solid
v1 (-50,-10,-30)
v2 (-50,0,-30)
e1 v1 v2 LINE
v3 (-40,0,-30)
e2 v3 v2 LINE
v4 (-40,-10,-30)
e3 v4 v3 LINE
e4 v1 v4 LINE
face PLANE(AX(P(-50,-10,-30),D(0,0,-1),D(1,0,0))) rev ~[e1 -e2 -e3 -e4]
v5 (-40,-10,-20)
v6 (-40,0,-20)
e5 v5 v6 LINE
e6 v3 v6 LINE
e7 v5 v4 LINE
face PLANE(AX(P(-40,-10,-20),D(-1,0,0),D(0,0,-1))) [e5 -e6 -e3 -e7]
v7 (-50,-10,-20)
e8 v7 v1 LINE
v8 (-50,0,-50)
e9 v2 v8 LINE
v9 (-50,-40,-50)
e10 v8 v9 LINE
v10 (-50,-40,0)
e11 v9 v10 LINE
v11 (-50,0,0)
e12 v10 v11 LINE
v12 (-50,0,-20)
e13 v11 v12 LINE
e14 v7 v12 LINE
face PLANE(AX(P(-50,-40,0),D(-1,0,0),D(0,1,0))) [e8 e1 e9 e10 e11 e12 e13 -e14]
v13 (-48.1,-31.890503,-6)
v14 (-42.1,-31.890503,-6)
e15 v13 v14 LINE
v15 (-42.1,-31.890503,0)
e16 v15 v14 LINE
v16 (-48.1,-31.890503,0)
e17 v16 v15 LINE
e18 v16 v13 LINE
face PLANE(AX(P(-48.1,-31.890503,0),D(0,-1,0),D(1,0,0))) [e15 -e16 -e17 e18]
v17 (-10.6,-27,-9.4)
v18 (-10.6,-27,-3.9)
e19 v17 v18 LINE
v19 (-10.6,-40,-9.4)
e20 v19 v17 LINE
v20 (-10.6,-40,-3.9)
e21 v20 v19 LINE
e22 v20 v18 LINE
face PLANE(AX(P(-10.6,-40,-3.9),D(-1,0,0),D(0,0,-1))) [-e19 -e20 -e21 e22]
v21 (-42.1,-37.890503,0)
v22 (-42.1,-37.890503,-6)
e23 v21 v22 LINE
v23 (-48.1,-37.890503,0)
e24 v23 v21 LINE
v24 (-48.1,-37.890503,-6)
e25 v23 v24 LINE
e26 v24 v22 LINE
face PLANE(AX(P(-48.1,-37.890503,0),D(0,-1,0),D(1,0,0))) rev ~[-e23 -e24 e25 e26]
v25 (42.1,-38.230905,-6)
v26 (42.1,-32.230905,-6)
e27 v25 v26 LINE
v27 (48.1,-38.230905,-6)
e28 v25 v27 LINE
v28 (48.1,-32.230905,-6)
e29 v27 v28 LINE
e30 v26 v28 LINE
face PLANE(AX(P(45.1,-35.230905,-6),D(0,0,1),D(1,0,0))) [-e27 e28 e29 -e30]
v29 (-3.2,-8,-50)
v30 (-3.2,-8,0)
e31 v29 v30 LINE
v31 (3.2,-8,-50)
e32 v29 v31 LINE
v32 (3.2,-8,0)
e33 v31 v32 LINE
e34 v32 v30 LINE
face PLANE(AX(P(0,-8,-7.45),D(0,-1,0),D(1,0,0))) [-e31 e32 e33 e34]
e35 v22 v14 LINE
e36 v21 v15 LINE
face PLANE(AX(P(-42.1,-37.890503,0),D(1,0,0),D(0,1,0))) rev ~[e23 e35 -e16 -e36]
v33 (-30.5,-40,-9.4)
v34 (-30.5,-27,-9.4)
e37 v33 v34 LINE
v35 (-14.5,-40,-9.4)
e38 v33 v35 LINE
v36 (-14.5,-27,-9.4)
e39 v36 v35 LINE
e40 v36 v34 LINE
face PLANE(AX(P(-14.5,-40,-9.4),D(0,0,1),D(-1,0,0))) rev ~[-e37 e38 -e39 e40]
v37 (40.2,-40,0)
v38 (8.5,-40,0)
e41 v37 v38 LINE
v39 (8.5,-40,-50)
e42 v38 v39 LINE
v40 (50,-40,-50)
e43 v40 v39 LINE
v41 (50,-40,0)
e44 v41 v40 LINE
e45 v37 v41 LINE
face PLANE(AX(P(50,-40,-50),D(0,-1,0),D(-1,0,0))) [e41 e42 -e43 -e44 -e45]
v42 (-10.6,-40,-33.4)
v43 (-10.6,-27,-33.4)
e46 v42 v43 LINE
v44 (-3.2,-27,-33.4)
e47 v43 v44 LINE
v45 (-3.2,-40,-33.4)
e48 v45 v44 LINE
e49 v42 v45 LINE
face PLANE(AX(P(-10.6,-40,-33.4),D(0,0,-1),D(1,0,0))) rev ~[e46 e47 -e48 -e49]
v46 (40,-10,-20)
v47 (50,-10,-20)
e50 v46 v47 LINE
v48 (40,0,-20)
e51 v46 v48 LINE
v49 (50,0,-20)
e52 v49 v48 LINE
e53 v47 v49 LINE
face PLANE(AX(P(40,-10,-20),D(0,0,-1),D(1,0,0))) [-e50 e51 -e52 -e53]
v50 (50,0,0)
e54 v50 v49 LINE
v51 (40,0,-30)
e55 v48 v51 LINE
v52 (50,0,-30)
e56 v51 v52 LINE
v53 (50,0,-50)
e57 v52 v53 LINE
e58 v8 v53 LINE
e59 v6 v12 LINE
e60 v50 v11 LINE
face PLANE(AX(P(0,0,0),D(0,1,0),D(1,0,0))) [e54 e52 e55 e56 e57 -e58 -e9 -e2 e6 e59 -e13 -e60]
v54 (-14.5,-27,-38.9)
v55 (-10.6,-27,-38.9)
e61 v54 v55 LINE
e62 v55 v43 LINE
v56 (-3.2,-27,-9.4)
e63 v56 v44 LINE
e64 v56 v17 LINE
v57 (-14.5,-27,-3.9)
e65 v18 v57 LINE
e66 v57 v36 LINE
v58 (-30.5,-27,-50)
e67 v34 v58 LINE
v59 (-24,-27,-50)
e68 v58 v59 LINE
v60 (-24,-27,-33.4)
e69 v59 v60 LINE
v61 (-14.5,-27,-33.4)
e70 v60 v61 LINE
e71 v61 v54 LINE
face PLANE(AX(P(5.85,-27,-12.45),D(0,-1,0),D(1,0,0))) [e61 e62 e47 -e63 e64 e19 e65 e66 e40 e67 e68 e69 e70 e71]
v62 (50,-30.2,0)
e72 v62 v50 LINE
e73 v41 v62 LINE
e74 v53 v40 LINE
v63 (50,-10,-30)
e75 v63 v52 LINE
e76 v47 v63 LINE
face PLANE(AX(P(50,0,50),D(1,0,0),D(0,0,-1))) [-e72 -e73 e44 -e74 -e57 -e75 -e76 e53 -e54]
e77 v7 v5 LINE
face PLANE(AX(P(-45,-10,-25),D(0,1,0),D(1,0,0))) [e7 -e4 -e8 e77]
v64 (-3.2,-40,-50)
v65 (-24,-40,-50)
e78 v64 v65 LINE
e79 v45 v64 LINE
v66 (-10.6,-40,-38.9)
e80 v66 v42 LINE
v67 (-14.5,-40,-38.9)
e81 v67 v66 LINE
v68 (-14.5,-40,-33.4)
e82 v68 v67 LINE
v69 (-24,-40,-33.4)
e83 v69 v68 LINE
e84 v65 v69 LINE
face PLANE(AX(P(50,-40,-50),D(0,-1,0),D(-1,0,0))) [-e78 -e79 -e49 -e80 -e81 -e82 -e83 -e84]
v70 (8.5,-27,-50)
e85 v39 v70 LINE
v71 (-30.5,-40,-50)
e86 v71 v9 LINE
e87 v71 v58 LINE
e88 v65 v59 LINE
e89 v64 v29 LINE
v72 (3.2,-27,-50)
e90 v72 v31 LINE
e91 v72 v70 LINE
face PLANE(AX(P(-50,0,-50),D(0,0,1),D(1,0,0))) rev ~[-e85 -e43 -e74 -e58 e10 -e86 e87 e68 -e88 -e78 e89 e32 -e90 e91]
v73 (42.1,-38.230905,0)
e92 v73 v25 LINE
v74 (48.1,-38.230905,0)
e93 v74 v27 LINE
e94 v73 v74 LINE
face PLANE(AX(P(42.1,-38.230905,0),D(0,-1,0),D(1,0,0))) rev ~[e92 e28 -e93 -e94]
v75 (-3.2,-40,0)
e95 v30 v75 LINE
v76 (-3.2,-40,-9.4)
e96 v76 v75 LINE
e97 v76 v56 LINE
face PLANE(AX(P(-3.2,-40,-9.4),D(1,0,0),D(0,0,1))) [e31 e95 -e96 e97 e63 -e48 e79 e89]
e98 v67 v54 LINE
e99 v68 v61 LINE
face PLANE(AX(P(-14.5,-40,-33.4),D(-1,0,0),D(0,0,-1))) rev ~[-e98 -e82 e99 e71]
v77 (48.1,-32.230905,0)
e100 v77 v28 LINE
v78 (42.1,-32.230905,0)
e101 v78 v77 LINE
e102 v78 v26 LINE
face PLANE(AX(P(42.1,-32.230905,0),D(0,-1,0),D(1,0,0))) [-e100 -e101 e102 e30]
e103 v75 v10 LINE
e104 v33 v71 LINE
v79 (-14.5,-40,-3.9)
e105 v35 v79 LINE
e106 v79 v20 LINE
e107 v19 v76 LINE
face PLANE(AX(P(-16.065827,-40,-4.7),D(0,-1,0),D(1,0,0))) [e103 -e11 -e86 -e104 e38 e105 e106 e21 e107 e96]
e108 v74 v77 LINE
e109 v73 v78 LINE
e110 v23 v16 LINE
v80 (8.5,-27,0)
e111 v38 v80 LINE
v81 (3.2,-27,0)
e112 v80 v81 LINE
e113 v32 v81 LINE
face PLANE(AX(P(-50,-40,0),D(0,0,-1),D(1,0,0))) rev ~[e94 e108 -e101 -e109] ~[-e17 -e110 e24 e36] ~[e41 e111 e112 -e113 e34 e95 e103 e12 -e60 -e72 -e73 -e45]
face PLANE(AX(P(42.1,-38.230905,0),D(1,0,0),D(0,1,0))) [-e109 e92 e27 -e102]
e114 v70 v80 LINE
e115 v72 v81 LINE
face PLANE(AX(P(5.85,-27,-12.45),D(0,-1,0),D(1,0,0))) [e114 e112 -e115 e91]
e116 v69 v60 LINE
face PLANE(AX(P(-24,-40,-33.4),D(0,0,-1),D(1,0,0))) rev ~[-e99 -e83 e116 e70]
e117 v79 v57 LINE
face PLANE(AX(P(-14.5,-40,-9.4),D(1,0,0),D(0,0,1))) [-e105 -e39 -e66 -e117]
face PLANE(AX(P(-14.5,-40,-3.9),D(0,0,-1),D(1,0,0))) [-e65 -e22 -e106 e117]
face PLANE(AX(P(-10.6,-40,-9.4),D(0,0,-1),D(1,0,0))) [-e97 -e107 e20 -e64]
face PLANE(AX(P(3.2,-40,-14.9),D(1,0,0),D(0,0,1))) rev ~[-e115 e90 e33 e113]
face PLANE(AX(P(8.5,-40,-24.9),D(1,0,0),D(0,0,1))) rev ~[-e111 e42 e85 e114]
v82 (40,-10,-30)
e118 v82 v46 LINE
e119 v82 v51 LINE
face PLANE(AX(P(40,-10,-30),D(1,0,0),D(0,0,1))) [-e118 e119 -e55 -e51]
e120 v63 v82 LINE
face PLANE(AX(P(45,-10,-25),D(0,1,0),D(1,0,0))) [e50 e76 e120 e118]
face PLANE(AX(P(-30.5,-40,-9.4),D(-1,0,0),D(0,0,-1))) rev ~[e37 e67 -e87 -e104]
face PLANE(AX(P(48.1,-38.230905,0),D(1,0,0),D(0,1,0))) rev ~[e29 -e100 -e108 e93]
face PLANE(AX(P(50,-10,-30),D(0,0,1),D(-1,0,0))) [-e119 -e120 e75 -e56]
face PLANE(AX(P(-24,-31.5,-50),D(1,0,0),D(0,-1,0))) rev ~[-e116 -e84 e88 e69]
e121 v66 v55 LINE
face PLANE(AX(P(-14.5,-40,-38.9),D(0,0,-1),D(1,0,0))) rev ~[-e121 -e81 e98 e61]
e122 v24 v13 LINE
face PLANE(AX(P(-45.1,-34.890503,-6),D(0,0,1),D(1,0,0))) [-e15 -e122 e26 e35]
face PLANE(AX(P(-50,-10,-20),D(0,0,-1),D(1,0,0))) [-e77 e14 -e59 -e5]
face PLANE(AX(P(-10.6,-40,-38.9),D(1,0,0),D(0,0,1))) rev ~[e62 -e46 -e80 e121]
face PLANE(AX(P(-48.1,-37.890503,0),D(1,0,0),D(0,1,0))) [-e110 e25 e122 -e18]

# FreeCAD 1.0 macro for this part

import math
import FreeCAD as App
import Part
import Sketcher
from FreeCAD import Vector
Q = App.Units.Quantity


def edges_at(feature, points):
    """Names of the edges that pass closest to the given points."""
    edges = feature.Shape.Edges
    near = lambda p: min(range(len(edges)), key=lambda i: edges[i].distToShape(Part.Vertex(*p))[0])
    return sorted({f"Edge{near(p) + 1}" for p in points})

doc = App.newDocument("Part")
body = doc.addObject("PartDesign::Body", "Body")

sketch1 = body.newObject("Sketcher::SketchObject", "Sketch")
sketch1.AttachmentSupport = (doc.getObject("XZ_Plane"), [""])
sketch1.MapMode = "FlatFace"
sketch1.addGeometry(Part.LineSegment(Vector(-50, -50, 0), Vector(-50, 50, 0)), False)
sketch1.addGeometry(Part.LineSegment(Vector(-50, 50, 0), Vector(50, 50, 0)), False)
sketch1.addGeometry(Part.LineSegment(Vector(50, 50, 0), Vector(50, -50, 0)), False)
sketch1.addGeometry(Part.LineSegment(Vector(50, -50, 0), Vector(-50, -50, 0)), False)
sketch1.addConstraint(Sketcher.Constraint("Coincident", 0, 2, 1, 1))
sketch1.addConstraint(Sketcher.Constraint("Coincident", 1, 2, 2, 1))
sketch1.addConstraint(Sketcher.Constraint("Coincident", 2, 2, 3, 1))
sketch1.addConstraint(Sketcher.Constraint("Coincident", 3, 2, 0, 1))
sketch1.addConstraint(Sketcher.Constraint("Vertical", 0))
sketch1.addConstraint(Sketcher.Constraint("Horizontal", 1))
sketch1.addConstraint(Sketcher.Constraint("Vertical", 2))
sketch1.addConstraint(Sketcher.Constraint("Horizontal", 3))
sketch1.addConstraint(Sketcher.Constraint("Symmetric", 0, 2, 2, 2, -1, 1))
sketch1.addConstraint(Sketcher.Constraint("Equal", 3, 0))
sketch1.addConstraint(Sketcher.Constraint("DistanceX", 1, 1, 1, 2, Q("100 mm")))
pad1 = body.newObject("PartDesign::Pad", "Pad")
pad1.Profile = sketch1
pad1.Length = 50

sketch2 = body.newObject("Sketcher::SketchObject", "Sketch001")
sketch2.AttachmentSupport = (doc.getObject("XY_Plane"), [""])
sketch2.MapMode = "FlatFace"
sketch2.AttachmentOffset = App.Placement(Vector(0, 0, -50), App.Rotation())
sketch2.addGeometry(Part.LineSegment(Vector(50, -40, 0), Vector(50, -50, 0)), False)
sketch2.addGeometry(Part.LineSegment(Vector(50, -50, 0), Vector(-50, -50, 0)), False)
sketch2.addGeometry(Part.LineSegment(Vector(-50, -50, 0), Vector(-50, -40, 0)), False)
sketch2.addGeometry(Part.LineSegment(Vector(-50, -40, 0), Vector(50, -40, 0)), False)
sketch2.addConstraint(Sketcher.Constraint("Coincident", 0, 2, 1, 1))
sketch2.addConstraint(Sketcher.Constraint("Coincident", 1, 2, 2, 1))
sketch2.addConstraint(Sketcher.Constraint("Coincident", 2, 2, 3, 1))
sketch2.addConstraint(Sketcher.Constraint("Coincident", 3, 2, 0, 1))
sketch2.addConstraint(Sketcher.Constraint("Vertical", 0))
sketch2.addConstraint(Sketcher.Constraint("Horizontal", 1))
sketch2.addConstraint(Sketcher.Constraint("Vertical", 2))
sketch2.addConstraint(Sketcher.Constraint("Horizontal", 3))
sketch2.addConstraint(Sketcher.Constraint("DistanceX", 1, 2, 1, 1, Q("100 mm")))
sketch2.addConstraint(Sketcher.Constraint("DistanceY", 0, 2, 0, 1, Q("10 mm")))
sketch2.addConstraint(Sketcher.Constraint("DistanceX", -1, 1, 0, 2, Q("50 mm")))
sketch2.addConstraint(Sketcher.Constraint("DistanceY", 0, 2, -1, 1, Q("50 mm")))
pocket1 = body.newObject("PartDesign::Pocket", "Pocket")
pocket1.Profile = sketch2
pocket1.Length = 50
pocket1.Reversed = True

sketch3 = body.newObject("Sketcher::SketchObject", "Sketch002")
sketch3.AttachmentSupport = (doc.getObject("XZ_Plane"), [""])
sketch3.MapMode = "FlatFace"
sketch3.addGeometry(Part.LineSegment(Vector(-50, 0, 0), Vector(-50, 50, 0)), False)
sketch3.addGeometry(Part.LineSegment(Vector(-50, 50, 0), Vector(50, 50, 0)), False)
sketch3.addGeometry(Part.LineSegment(Vector(50, 50, 0), Vector(50, 0, 0)), False)
sketch3.addGeometry(Part.LineSegment(Vector(50, 0, 0), Vector(-50, 0, 0)), False)
sketch3.addConstraint(Sketcher.Constraint("Coincident", 0, 2, 1, 1))
sketch3.addConstraint(Sketcher.Constraint("Coincident", 1, 2, 2, 1))
sketch3.addConstraint(Sketcher.Constraint("Coincident", 2, 2, 3, 1))
sketch3.addConstraint(Sketcher.Constraint("Coincident", 3, 2, 0, 1))
sketch3.addConstraint(Sketcher.Constraint("Vertical", 0))
sketch3.addConstraint(Sketcher.Constraint("Horizontal", 1))
sketch3.addConstraint(Sketcher.Constraint("Vertical", 2))
sketch3.addConstraint(Sketcher.Constraint("Horizontal", 3))
sketch3.addConstraint(Sketcher.Constraint("Symmetric", 2, 2, 3, 2, -1, 1))
sketch3.addConstraint(Sketcher.Constraint("DistanceX", 1, 1, 1, 2, Q("100 mm")))
sketch3.addConstraint(Sketcher.Constraint("DistanceY", 0, 1, 0, 2, Q("50 mm")))
pocket2 = body.newObject("PartDesign::Pocket", "Pocket001")
pocket2.Profile = sketch3
pocket2.Length = 25
pocket2.Reversed = True

sketch4 = body.newObject("Sketcher::SketchObject", "Sketch003")
sketch4.AttachmentSupport = (doc.getObject("XY_Plane"), [""])
sketch4.MapMode = "FlatFace"
sketch4.addGeometry(Part.LineSegment(Vector(-50, -70, 0), Vector(-50, -50, 0)), False)
sketch4.addGeometry(Part.LineSegment(Vector(-50, -50, 0), Vector(-30, -50, 0)), False)
sketch4.addGeometry(Part.LineSegment(Vector(-30, -50, 0), Vector(-50, -70, 0)), False)
sketch4.addGeometry(Part.LineSegment(Vector(50, -50, 0), Vector(50, -69.5, 0)), False)
sketch4.addGeometry(Part.LineSegment(Vector(50, -69.5, 0), Vector(30.5, -50, 0)), False)
sketch4.addGeometry(Part.LineSegment(Vector(30.5, -50, 0), Vector(50, -50, 0)), False)
sketch4.addConstraint(Sketcher.Constraint("Coincident", 0, 2, 1, 1))
sketch4.addConstraint(Sketcher.Constraint("Coincident", 1, 2, 2, 1))
sketch4.addConstraint(Sketcher.Constraint("Coincident", 2, 2, 0, 1))
sketch4.addConstraint(Sketcher.Constraint("Coincident", 3, 2, 4, 1))
sketch4.addConstraint(Sketcher.Constraint("Coincident", 4, 2, 5, 1))
sketch4.addConstraint(Sketcher.Constraint("Coincident", 5, 2, 3, 1))
sketch4.addConstraint(Sketcher.Constraint("Vertical", 0))
sketch4.addConstraint(Sketcher.Constraint("Horizontal", 1))
sketch4.addConstraint(Sketcher.Constraint("Vertical", 3))
sketch4.addConstraint(Sketcher.Constraint("Horizontal", 5))
sketch4.addConstraint(Sketcher.Constraint("Symmetric", 0, 2, 5, 2, -2))
sketch4.addConstraint(Sketcher.Constraint("Perpendicular", 2, 4))
sketch4.addConstraint(Sketcher.Constraint("Equal", 1, 0))
sketch4.addConstraint(Sketcher.Constraint("DistanceX", 1, 1, 1, 2, Q("20 mm")))
sketch4.addConstraint(Sketcher.Constraint("DistanceX", 5, 1, 5, 2, Q("19.5 mm")))
sketch4.addConstraint(Sketcher.Constraint("DistanceX", 0, 2, -1, 1, Q("50 mm")))
sketch4.addConstraint(Sketcher.Constraint("DistanceY", 0, 2, -1, 1, Q("50 mm")))
pad2 = body.newObject("PartDesign::Pad", "Pad001")
pad2.Profile = sketch4
pad2.Length = 19.5

sketch5 = body.newObject("Sketcher::SketchObject", "Sketch004")
sketch5.AttachmentSupport = (doc.getObject("XZ_Plane"), [""])
sketch5.MapMode = "FlatFace"
sketch5.AttachmentOffset = App.Placement(Vector(0, 0, 40), App.Rotation())
sketch5.addGeometry(Part.LineSegment(Vector(3.2, 0, 0), Vector(-30, 0, 0)), False)
sketch5.addGeometry(Part.LineSegment(Vector(-30, 0, 0), Vector(-30, -22.9, 0)), False)
sketch5.addGeometry(Part.LineSegment(Vector(-30, -22.9, 0), Vector(-14, -22.9, 0)), False)
sketch5.addGeometry(Part.LineSegment(Vector(-14, -22.9, 0), Vector(-14, -27.9, 0)), False)
sketch5.addGeometry(Part.LineSegment(Vector(-14, -27.9, 0), Vector(-11.1, -27.9, 0)), False)
sketch5.addGeometry(Part.LineSegment(Vector(-11.1, -27.9, 0), Vector(-11.1, -22.9, 0)), False)
sketch5.addGeometry(Part.LineSegment(Vector(-11.1, -22.9, 0), Vector(-7, -22.9, 0)), False)
sketch5.addGeometry(Part.LineSegment(Vector(-7, -22.9, 0), Vector(-7, -14.9, 0)), False)
sketch5.addGeometry(Part.LineSegment(Vector(-7, -14.9, 0), Vector(3.2, -14.9, 0)), False)
sketch5.addGeometry(Part.LineSegment(Vector(3.2, -14.9, 0), Vector(3.2, 0, 0)), False)
sketch5.addConstraint(Sketcher.Constraint("Coincident", 0, 2, 1, 1))
sketch5.addConstraint(Sketcher.Constraint("Coincident", 1, 2, 2, 1))
sketch5.addConstraint(Sketcher.Constraint("Coincident", 2, 2, 3, 1))
sketch5.addConstraint(Sketcher.Constraint("Coincident", 3, 2, 4, 1))
sketch5.addConstraint(Sketcher.Constraint("Coincident", 4, 2, 5, 1))
sketch5.addConstraint(Sketcher.Constraint("Coincident", 5, 2, 6, 1))
sketch5.addConstraint(Sketcher.Constraint("Coincident", 6, 2, 7, 1))
sketch5.addConstraint(Sketcher.Constraint("Coincident", 7, 2, 8, 1))
sketch5.addConstraint(Sketcher.Constraint("Coincident", 8, 2, 9, 1))
sketch5.addConstraint(Sketcher.Constraint("Coincident", 9, 2, 0, 1))
sketch5.addConstraint(Sketcher.Constraint("Horizontal", 0))
sketch5.addConstraint(Sketcher.Constraint("Vertical", 1))
sketch5.addConstraint(Sketcher.Constraint("Horizontal", 2))
sketch5.addConstraint(Sketcher.Constraint("Vertical", 3))
sketch5.addConstraint(Sketcher.Constraint("Horizontal", 4))
sketch5.addConstraint(Sketcher.Constraint("Vertical", 5))
sketch5.addConstraint(Sketcher.Constraint("Horizontal", 6))
sketch5.addConstraint(Sketcher.Constraint("Vertical", 7))
sketch5.addConstraint(Sketcher.Constraint("Horizontal", 8))
sketch5.addConstraint(Sketcher.Constraint("Vertical", 9))
sketch5.addConstraint(Sketcher.Constraint("PointOnObject", 0, 2, -1))
sketch5.addConstraint(Sketcher.Constraint("Horizontal", 2, 2, 5, 2))
sketch5.addConstraint(Sketcher.Constraint("DistanceX", 2, 1, 2, 2, Q("16 mm")))
sketch5.addConstraint(Sketcher.Constraint("DistanceY", 3, 2, 3, 1, Q("5 mm")))
sketch5.addConstraint(Sketcher.Constraint("DistanceY", 7, 1, 7, 2, Q("8 mm")))
sketch5.addConstraint(Sketcher.Constraint("DistanceX", 0, 2, 0, 1, Q("33.2 mm")))
sketch5.addConstraint(Sketcher.Constraint("DistanceX", 4, 1, 4, 2, Q("2.9 mm")))
sketch5.addConstraint(Sketcher.Constraint("DistanceX", 6, 1, 6, 2, Q("4.1 mm")))
sketch5.addConstraint(Sketcher.Constraint("DistanceY", 1, 2, 1, 1, Q("22.9 mm")))
sketch5.addConstraint(Sketcher.Constraint("DistanceX", 0, 2, -1, 1, Q("30 mm")))
pocket3 = body.newObject("PartDesign::Pocket", "Pocket002")
pocket3.Profile = sketch5
pocket3.Length = 12

sketch6 = body.newObject("Sketcher::SketchObject", "Sketch005")
sketch6.AttachmentSupport = (doc.getObject("XZ_Plane"), [""])
sketch6.MapMode = "FlatFace"
sketch6.AttachmentOffset = App.Placement(Vector(0, 0, 40), App.Rotation())
sketch6.addGeometry(Part.LineSegment(Vector(3.2, 0, 0), Vector(-3.2, 0, 0)), False)
sketch6.addGeometry(Part.LineSegment(Vector(-3.2, 0, 0), Vector(-3.2, -14.9, 0)), False)
sketch6.addGeometry(Part.LineSegment(Vector(-3.2, -14.9, 0), Vector(3.2, -14.9, 0)), False)
sketch6.addGeometry(Part.LineSegment(Vector(3.2, -14.9, 0), Vector(3.2, 0, 0)), False)
sketch6.addConstraint(Sketcher.Constraint("Coincident", 0, 2, 1, 1))
sketch6.addConstraint(Sketcher.Constraint("Coincident", 1, 2, 2, 1))
sketch6.addConstraint(Sketcher.Constraint("Coincident", 2, 2, 3, 1))
sketch6.addConstraint(Sketcher.Constraint("Coincident", 3, 2, 0, 1))
sketch6.addConstraint(Sketcher.Constraint("Horizontal", 0))
sketch6.addConstraint(Sketcher.Constraint("Vertical", 1))
sketch6.addConstraint(Sketcher.Constraint("Horizontal", 2))
sketch6.addConstraint(Sketcher.Constraint("Vertical", 3))
sketch6.addConstraint(Sketcher.Constraint("Symmetric", 0, 2, 3, 2, -1, 1))
sketch6.addConstraint(Sketcher.Constraint("DistanceX", 0, 2, 0, 1, Q("6.4 mm")))
sketch6.addConstraint(Sketcher.Constraint("DistanceY", 1, 2, 1, 1, Q("14.9 mm")))
pocket4 = body.newObject("PartDesign::Pocket", "Pocket003")
pocket4.Profile = sketch6
pocket4.Length = 32

sketch7 = body.newObject("Sketcher::SketchObject", "Sketch006")
sketch7.AttachmentSupport = (doc.getObject("XY_Plane"), [""])
sketch7.MapMode = "FlatFace"
sketch7.addGeometry(Part.LineSegment(Vector(3.2, -18, 0), Vector(3.2, -50, 0)), False)
sketch7.addGeometry(Part.LineSegment(Vector(3.2, -50, 0), Vector(-3.2, -50, 0)), False)
sketch7.addGeometry(Part.LineSegment(Vector(-3.2, -50, 0), Vector(-3.2, -18, 0)), False)
sketch7.addGeometry(Part.LineSegment(Vector(-3.2, -18, 0), Vector(3.2, -18, 0)), False)
sketch7.addConstraint(Sketcher.Constraint("Coincident", 0, 2, 1, 1))
sketch7.addConstraint(Sketcher.Constraint("Coincident", 1, 2, 2, 1))
sketch7.addConstraint(Sketcher.Constraint("Coincident", 2, 2, 3, 1))
sketch7.addConstraint(Sketcher.Constraint("Coincident", 3, 2, 0, 1))
sketch7.addConstraint(Sketcher.Constraint("Vertical", 0))
sketch7.addConstraint(Sketcher.Constraint("Horizontal", 1))
sketch7.addConstraint(Sketcher.Constraint("Vertical", 2))
sketch7.addConstraint(Sketcher.Constraint("Horizontal", 3))
sketch7.addConstraint(Sketcher.Constraint("DistanceY", 0, 2, 0, 1, Q("32 mm")))
sketch7.addConstraint(Sketcher.Constraint("DistanceX", 1, 2, 1, 1, Q("6.4 mm")))
sketch7.addConstraint(Sketcher.Constraint("DistanceY", 0, 2, -1, 1, Q("50 mm")))
sketch7.addConstraint(Sketcher.Constraint("DistanceX", -1, 1, 0, 2, Q("3.2 mm")))
pocket5 = body.newObject("PartDesign::Pocket", "Pocket004")
pocket5.Profile = sketch7
pocket5.Length = 29
pocket5.Reversed = True

sketch8 = body.newObject("Sketcher::SketchObject", "Sketch007")
sketch8.AttachmentSupport = (doc.getObject("XY_Plane"), [""])
sketch8.MapMode = "FlatFace"
sketch8.AttachmentOffset = App.Placement(Vector(0, 0, -50), App.Rotation())
sketch8.addGeometry(Part.LineSegment(Vector(-30, -31.5, 0), Vector(-24, -31.5, 0)), False)
sketch8.addGeometry(Part.LineSegment(Vector(-24, -31.5, 0), Vector(-24, -40, 0)), False)
sketch8.addGeometry(Part.LineSegment(Vector(-24, -40, 0), Vector(-30, -40, 0)), False)
sketch8.addGeometry(Part.LineSegment(Vector(-30, -40, 0), Vector(-30, -31.5, 0)), False)
sketch8.addConstraint(Sketcher.Constraint("Coincident", 0, 2, 1, 1))
sketch8.addConstraint(Sketcher.Constraint("Coincident", 1, 2, 2, 1))
sketch8.addConstraint(Sketcher.Constraint("Coincident", 2, 2, 3, 1))
sketch8.addConstraint(Sketcher.Constraint("Coincident", 3, 2, 0, 1))
sketch8.addConstraint(Sketcher.Constraint("Horizontal", 0))
sketch8.addConstraint(Sketcher.Constraint("Vertical", 1))
sketch8.addConstraint(Sketcher.Constraint("Horizontal", 2))
sketch8.addConstraint(Sketcher.Constraint("Vertical", 3))
sketch8.addConstraint(Sketcher.Constraint("DistanceX", 0, 1, 0, 2, Q("6 mm")))
sketch8.addConstraint(Sketcher.Constraint("DistanceY", 1, 2, 1, 1, Q("8.5 mm")))
sketch8.addConstraint(Sketcher.Constraint("DistanceX", 0, 2, -1, 1, Q("24 mm")))
sketch8.addConstraint(Sketcher.Constraint("DistanceY", 1, 2, -1, 1, Q("40 mm")))
pocket6 = body.newObject("PartDesign::Pocket", "Pocket005")
pocket6.Profile = sketch8
pocket6.Length = 28
pocket6.Reversed = True

sketch9 = body.newObject("Sketcher::SketchObject", "Sketch008")
sketch9.AttachmentSupport = (doc.getObject("XZ_Plane"), [""])
sketch9.MapMode = "FlatFace"
sketch9.AttachmentOffset = App.Placement(Vector(0, 0, 25), App.Rotation())
sketch9.addGeometry(Part.LineSegment(Vector(-50, 0, 0), Vector(-50, 50, 0)), False)
sketch9.addGeometry(Part.LineSegment(Vector(-50, 50, 0), Vector(50, 50, 0)), False)
sketch9.addGeometry(Part.LineSegment(Vector(50, 50, 0), Vector(50, 0, 0)), False)
sketch9.addGeometry(Part.LineSegment(Vector(50, 0, 0), Vector(-50, 0, 0)), False)
sketch9.addConstraint(Sketcher.Constraint("Coincident", 0, 2, 1, 1))
sketch9.addConstraint(Sketcher.Constraint("Coincident", 1, 2, 2, 1))
sketch9.addConstraint(Sketcher.Constraint("Coincident", 2, 2, 3, 1))
sketch9.addConstraint(Sketcher.Constraint("Coincident", 3, 2, 0, 1))
sketch9.addConstraint(Sketcher.Constraint("Vertical", 0))
sketch9.addConstraint(Sketcher.Constraint("Horizontal", 1))
sketch9.addConstraint(Sketcher.Constraint("Vertical", 2))
sketch9.addConstraint(Sketcher.Constraint("Horizontal", 3))
sketch9.addConstraint(Sketcher.Constraint("Symmetric", 2, 2, 3, 2, -1, 1))
sketch9.addConstraint(Sketcher.Constraint("DistanceX", 1, 1, 1, 2, Q("100 mm")))
sketch9.addConstraint(Sketcher.Constraint("DistanceY", 0, 1, 0, 2, Q("50 mm")))
pocket7 = body.newObject("PartDesign::Pocket", "Pocket006")
pocket7.Profile = sketch9
pocket7.Length = 45
pocket7.Reversed = True

sketch10 = body.newObject("Sketcher::SketchObject", "Sketch009")
sketch10.AttachmentSupport = (doc.getObject("XY_Plane"), [""])
sketch10.MapMode = "FlatFace"
sketch10.addGeometry(Part.LineSegment(Vector(-50, -30.2, 0), Vector(-50, -40, 0)), False)
sketch10.addGeometry(Part.LineSegment(Vector(-50, -40, 0), Vector(-40.2, -40, 0)), False)
sketch10.addGeometry(Part.LineSegment(Vector(-40.2, -40, 0), Vector(-40.2, -30.2, 0)), False)
sketch10.addGeometry(Part.LineSegment(Vector(-40.2, -30.2, 0), Vector(-50, -30.2, 0)), False)
sketch10.addGeometry(Part.LineSegment(Vector(40.2, -30.2, 0), Vector(40.2, -40, 0)), False)
sketch10.addGeometry(Part.LineSegment(Vector(40.2, -40, 0), Vector(50, -40, 0)), False)
sketch10.addGeometry(Part.LineSegment(Vector(50, -40, 0), Vector(50, -30.2, 0)), False)
sketch10.addGeometry(Part.LineSegment(Vector(50, -30.2, 0), Vector(40.2, -30.2, 0)), False)
sketch10.addConstraint(Sketcher.Constraint("Coincident", 0, 2, 1, 1))
sketch10.addConstraint(Sketcher.Constraint("Coincident", 1, 2, 2, 1))
sketch10.addConstraint(Sketcher.Constraint("Coincident", 2, 2, 3, 1))
sketch10.addConstraint(Sketcher.Constraint("Coincident", 3, 2, 0, 1))
sketch10.addConstraint(Sketcher.Constraint("Coincident", 4, 2, 5, 1))
sketch10.addConstraint(Sketcher.Constraint("Coincident", 5, 2, 6, 1))
sketch10.addConstraint(Sketcher.Constraint("Coincident", 6, 2, 7, 1))
sketch10.addConstraint(Sketcher.Constraint("Coincident", 7, 2, 4, 1))
sketch10.addConstraint(Sketcher.Constraint("Vertical", 0))
sketch10.addConstraint(Sketcher.Constraint("Horizontal", 1))
sketch10.addConstraint(Sketcher.Constraint("Vertical", 2))
sketch10.addConstraint(Sketcher.Constraint("Horizontal", 3))
sketch10.addConstraint(Sketcher.Constraint("Vertical", 4))
sketch10.addConstraint(Sketcher.Constraint("Horizontal", 5))
sketch10.addConstraint(Sketcher.Constraint("Vertical", 6))
sketch10.addConstraint(Sketcher.Constraint("Horizontal", 7))
sketch10.addConstraint(Sketcher.Constraint("Symmetric", 1, 2, 4, 2, -2))
sketch10.addConstraint(Sketcher.Constraint("Symmetric", 3, 2, 6, 2, -2))
sketch10.addConstraint(Sketcher.Constraint("Equal", 7, 0))
sketch10.addConstraint(Sketcher.Constraint("DistanceX", 1, 1, 1, 2, Q("9.8 mm")))
sketch10.addConstraint(Sketcher.Constraint("DistanceX", 0, 2, -1, 1, Q("50 mm")))
sketch10.addConstraint(Sketcher.Constraint("DistanceY", 0, 2, -1, 1, Q("40 mm")))
pad3 = body.newObject("PartDesign::Pad", "Pad002")
pad3.Profile = sketch10
pad3.Length = 9.8
doc.recompute()

chamfer = body.newObject("PartDesign::Chamfer", "Chamfer")
chamfer.Base = (pad3, edges_at(pad3, [
    (-40.2, -40, 4.9),
    (-40.2, -30.2, 4.9),
    (-40.2, -35.1, 9.8),
    (40.2, -30.2, 4.9),
    (40.2, -35.1, 9.8),
]))
chamfer.Size = 1

sketch11 = body.newObject("Sketcher::SketchObject", "Sketch010")
sketch11.AttachmentSupport = (doc.getObject("XZ_Plane"), [""])
sketch11.MapMode = "FlatFace"
sketch11.AttachmentOffset = App.Placement(Vector(0, 0, 40), App.Rotation())
sketch11.addGeometry(Part.LineSegment(Vector(-30, 0, 0), Vector(-30, -9.4, 0)), False)
sketch11.addGeometry(Part.LineSegment(Vector(-30, -9.4, 0), Vector(-14.5, -9.4, 0)), False)
sketch11.addGeometry(Part.LineSegment(Vector(-14.5, -9.4, 0), Vector(-14.5, -3.9, 0)), False)
sketch11.addGeometry(Part.LineSegment(Vector(-14.5, -3.9, 0), Vector(-10.6, -3.9, 0)), False)
sketch11.addGeometry(Part.LineSegment(Vector(-10.6, -3.9, 0), Vector(-10.6, -9.4, 0)), False)
sketch11.addGeometry(Part.LineSegment(Vector(-10.6, -9.4, 0), Vector(-3.2, -9.4, 0)), False)
sketch11.addGeometry(Part.LineSegment(Vector(-3.2, -9.4, 0), Vector(-3.2, 0, 0)), False)
sketch11.addGeometry(Part.LineSegment(Vector(-3.2, 0, 0), Vector(-30, 0, 0)), False)
sketch11.addConstraint(Sketcher.Constraint("Coincident", 0, 2, 1, 1))
sketch11.addConstraint(Sketcher.Constraint("Coincident", 1, 2, 2, 1))
sketch11.addConstraint(Sketcher.Constraint("Coincident", 2, 2, 3, 1))
sketch11.addConstraint(Sketcher.Constraint("Coincident", 3, 2, 4, 1))
sketch11.addConstraint(Sketcher.Constraint("Coincident", 4, 2, 5, 1))
sketch11.addConstraint(Sketcher.Constraint("Coincident", 5, 2, 6, 1))
sketch11.addConstraint(Sketcher.Constraint("Coincident", 6, 2, 7, 1))
sketch11.addConstraint(Sketcher.Constraint("Coincident", 7, 2, 0, 1))
sketch11.addConstraint(Sketcher.Constraint("Vertical", 0))
sketch11.addConstraint(Sketcher.Constraint("Horizontal", 1))
sketch11.addConstraint(Sketcher.Constraint("Vertical", 2))
sketch11.addConstraint(Sketcher.Constraint("Horizontal", 3))
sketch11.addConstraint(Sketcher.Constraint("Vertical", 4))
sketch11.addConstraint(Sketcher.Constraint("Horizontal", 5))
sketch11.addConstraint(Sketcher.Constraint("Vertical", 6))
sketch11.addConstraint(Sketcher.Constraint("Horizontal", 7))
sketch11.addConstraint(Sketcher.Constraint("PointOnObject", 6, 2, -1))
sketch11.addConstraint(Sketcher.Constraint("Horizontal", 1, 2, 4, 2))
sketch11.addConstraint(Sketcher.Constraint("DistanceX", 1, 1, 1, 2, Q("15.5 mm")))
sketch11.addConstraint(Sketcher.Constraint("DistanceX", 3, 1, 3, 2, Q("3.9 mm")))
sketch11.addConstraint(Sketcher.Constraint("DistanceX", 5, 1, 5, 2, Q("7.4 mm")))
sketch11.addConstraint(Sketcher.Constraint("DistanceY", 0, 2, 0, 1, Q("9.4 mm")))
sketch11.addConstraint(Sketcher.Constraint("DistanceY", 2, 1, 2, 2, Q("5.5 mm")))
sketch11.addConstraint(Sketcher.Constraint("DistanceX", 0, 2, -1, 1, Q("30 mm")))
pad4 = body.newObject("PartDesign::Pad", "Pad003")
pad4.Profile = sketch11
pad4.Length = 13
pad4.Reversed = True

sketch12 = body.newObject("Sketcher::SketchObject", "Sketch011")
sketch12.AttachmentSupport = (doc.getObject("XZ_Plane"), [""])
sketch12.MapMode = "FlatFace"
sketch12.AttachmentOffset = App.Placement(Vector(0, 0, 40), App.Rotation())
sketch12.addGeometry(Part.LineSegment(Vector(8.5, -24.9, 0), Vector(8.5, 0, 0)), False)
sketch12.addGeometry(Part.LineSegment(Vector(8.5, 0, 0), Vector(3.2, 0, 0)), False)
sketch12.addGeometry(Part.LineSegment(Vector(3.2, 0, 0), Vector(3.2, -9.4, 0)), False)
sketch12.addGeometry(Part.LineSegment(Vector(3.2, -9.4, 0), Vector(-10.6, -9.4, 0)), False)
sketch12.addGeometry(Part.LineSegment(Vector(-10.6, -9.4, 0), Vector(-10.6, -3.9, 0)), False)
sketch12.addGeometry(Part.LineSegment(Vector(-10.6, -3.9, 0), Vector(-14.5, -3.9, 0)), False)
sketch12.addGeometry(Part.LineSegment(Vector(-14.5, -3.9, 0), Vector(-14.5, -9.4, 0)), False)
sketch12.addGeometry(Part.LineSegment(Vector(-14.5, -9.4, 0), Vector(-30.5, -9.4, 0)), False)
sketch12.addGeometry(Part.LineSegment(Vector(-30.5, -9.4, 0), Vector(-30.5, -50, 0)), False)
sketch12.addGeometry(Part.LineSegment(Vector(-30.5, -50, 0), Vector(-24, -50, 0)), False)
sketch12.addGeometry(Part.LineSegment(Vector(-24, -50, 0), Vector(-24, -33.4, 0)), False)
sketch12.addGeometry(Part.LineSegment(Vector(-24, -33.4, 0), Vector(-14.5, -33.4, 0)), False)
sketch12.addGeometry(Part.LineSegment(Vector(-14.5, -33.4, 0), Vector(-14.5, -38.9, 0)), False)
sketch12.addGeometry(Part.LineSegment(Vector(-14.5, -38.9, 0), Vector(-10.6, -38.9, 0)), False)
sketch12.addGeometry(Part.LineSegment(Vector(-10.6, -38.9, 0), Vector(-10.6, -33.4, 0)), False)
sketch12.addGeometry(Part.LineSegment(Vector(-10.6, -33.4, 0), Vector(3.2, -33.4, 0)), False)
sketch12.addGeometry(Part.LineSegment(Vector(3.2, -33.4, 0), Vector(3.2, -24.9, 0)), False)
sketch12.addGeometry(Part.LineSegment(Vector(3.2, -24.9, 0), Vector(8.5, -24.9, 0)), False)
sketch12.addConstraint(Sketcher.Constraint("Coincident", 0, 2, 1, 1))
sketch12.addConstraint(Sketcher.Constraint("Coincident", 1, 2, 2, 1))
sketch12.addConstraint(Sketcher.Constraint("Coincident", 2, 2, 3, 1))
sketch12.addConstraint(Sketcher.Constraint("Coincident", 3, 2, 4, 1))
sketch12.addConstraint(Sketcher.Constraint("Coincident", 4, 2, 5, 1))
sketch12.addConstraint(Sketcher.Constraint("Coincident", 5, 2, 6, 1))
sketch12.addConstraint(Sketcher.Constraint("Coincident", 6, 2, 7, 1))
sketch12.addConstraint(Sketcher.Constraint("Coincident", 7, 2, 8, 1))
sketch12.addConstraint(Sketcher.Constraint("Coincident", 8, 2, 9, 1))
sketch12.addConstraint(Sketcher.Constraint("Coincident", 9, 2, 10, 1))
sketch12.addConstraint(Sketcher.Constraint("Coincident", 10, 2, 11, 1))
sketch12.addConstraint(Sketcher.Constraint("Coincident", 11, 2, 12, 1))
sketch12.addConstraint(Sketcher.Constraint("Coincident", 12, 2, 13, 1))
sketch12.addConstraint(Sketcher.Constraint("Coincident", 13, 2, 14, 1))
sketch12.addConstraint(Sketcher.Constraint("Coincident", 14, 2, 15, 1))
sketch12.addConstraint(Sketcher.Constraint("Coincident", 15, 2, 16, 1))
sketch12.addConstraint(Sketcher.Constraint("Coincident", 16, 2, 17, 1))
sketch12.addConstraint(Sketcher.Constraint("Coincident", 17, 2, 0, 1))
sketch12.addConstraint(Sketcher.Constraint("Vertical", 0))
sketch12.addConstraint(Sketcher.Constraint("Horizontal", 1))
sketch12.addConstraint(Sketcher.Constraint("Vertical", 2))
sketch12.addConstraint(Sketcher.Constraint("Horizontal", 3))
sketch12.addConstraint(Sketcher.Constraint("Vertical", 4))
sketch12.addConstraint(Sketcher.Constraint("Horizontal", 5))
sketch12.addConstraint(Sketcher.Constraint("Vertical", 6))
sketch12.addConstraint(Sketcher.Constraint("Horizontal", 7))
sketch12.addConstraint(Sketcher.Constraint("Vertical", 8))
sketch12.addConstraint(Sketcher.Constraint("Horizontal", 9))
sketch12.addConstraint(Sketcher.Constraint("Vertical", 10))
sketch12.addConstraint(Sketcher.Constraint("Horizontal", 11))
sketch12.addConstraint(Sketcher.Constraint("Vertical", 12))
sketch12.addConstraint(Sketcher.Constraint("Horizontal", 13))
sketch12.addConstraint(Sketcher.Constraint("Vertical", 14))
sketch12.addConstraint(Sketcher.Constraint("Horizontal", 15))
sketch12.addConstraint(Sketcher.Constraint("Vertical", 16))
sketch12.addConstraint(Sketcher.Constraint("Horizontal", 17))
sketch12.addConstraint(Sketcher.Constraint("PointOnObject", 0, 2, -1))
sketch12.addConstraint(Sketcher.Constraint("Horizontal", 3, 2, 6, 2))
sketch12.addConstraint(Sketcher.Constraint("Horizontal", 11, 2, 14, 2))
sketch12.addConstraint(Sketcher.Constraint("Vertical", 6, 2, 11, 2))
sketch12.addConstraint(Sketcher.Constraint("Vertical", 4, 2, 13, 2))
sketch12.addConstraint(Sketcher.Constraint("Vertical", 2, 2, 15, 2))
sketch12.addConstraint(Sketcher.Constraint("Equal", 6, 12))
sketch12.addConstraint(Sketcher.Constraint("DistanceX", 7, 2, 7, 1, Q("16 mm")))
sketch12.addConstraint(Sketcher.Constraint("DistanceX", 1, 2, 1, 1, Q("5.3 mm")))
sketch12.addConstraint(Sketcher.Constraint("DistanceX", 3, 2, 3, 1, Q("13.8 mm")))
sketch12.addConstraint(Sketcher.Constraint("DistanceX", 5, 2, 5, 1, Q("3.9 mm")))
sketch12.addConstraint(Sketcher.Constraint("DistanceX", 9, 1, 9, 2, Q("6.5 mm")))
sketch12.addConstraint(Sketcher.Constraint("DistanceY", 0, 1, 0, 2, Q("24.9 mm")))
sketch12.addConstraint(Sketcher.Constraint("DistanceY", 2, 2, 2, 1, Q("9.4 mm")))
sketch12.addConstraint(Sketcher.Constraint("DistanceY", 4, 1, 4, 2, Q("5.5 mm")))
sketch12.addConstraint(Sketcher.Constraint("DistanceY", 8, 2, 8, 1, Q("40.6 mm")))
sketch12.addConstraint(Sketcher.Constraint("DistanceY", 10, 1, 10, 2, Q("16.6 mm")))
sketch12.addConstraint(Sketcher.Constraint("DistanceX", 9, 2, -1, 1, Q("24 mm")))
pocket8 = body.newObject("PartDesign::Pocket", "Pocket007")
pocket8.Profile = sketch12
pocket8.Length = 13

sketch13 = body.newObject("Sketcher::SketchObject", "Sketch012")
sketch13.AttachmentSupport = (doc.getObject("XZ_Plane"), [""])
sketch13.MapMode = "FlatFace"
sketch13.addGeometry(Part.LineSegment(Vector(-50, -30, 0), Vector(-50, -20, 0)), False)
sketch13.addGeometry(Part.LineSegment(Vector(-50, -20, 0), Vector(-40, -20, 0)), False)
sketch13.addGeometry(Part.LineSegment(Vector(-40, -20, 0), Vector(-40, -30, 0)), False)
sketch13.addGeometry(Part.LineSegment(Vector(-40, -30, 0), Vector(-50, -30, 0)), False)
sketch13.addGeometry(Part.LineSegment(Vector(50, -20, 0), Vector(50, -30, 0)), False)
sketch13.addGeometry(Part.LineSegment(Vector(50, -30, 0), Vector(40, -30, 0)), False)
sketch13.addGeometry(Part.LineSegment(Vector(40, -30, 0), Vector(40, -20, 0)), False)
sketch13.addGeometry(Part.LineSegment(Vector(40, -20, 0), Vector(50, -20, 0)), False)
sketch13.addConstraint(Sketcher.Constraint("Coincident", 0, 2, 1, 1))
sketch13.addConstraint(Sketcher.Constraint("Coincident", 1, 2, 2, 1))
sketch13.addConstraint(Sketcher.Constraint("Coincident", 2, 2, 3, 1))
sketch13.addConstraint(Sketcher.Constraint("Coincident", 3, 2, 0, 1))
sketch13.addConstraint(Sketcher.Constraint("Coincident", 4, 2, 5, 1))
sketch13.addConstraint(Sketcher.Constraint("Coincident", 5, 2, 6, 1))
sketch13.addConstraint(Sketcher.Constraint("Coincident", 6, 2, 7, 1))
sketch13.addConstraint(Sketcher.Constraint("Coincident", 7, 2, 4, 1))
sketch13.addConstraint(Sketcher.Constraint("Vertical", 0))
sketch13.addConstraint(Sketcher.Constraint("Horizontal", 1))
sketch13.addConstraint(Sketcher.Constraint("Vertical", 2))
sketch13.addConstraint(Sketcher.Constraint("Horizontal", 3))
sketch13.addConstraint(Sketcher.Constraint("Vertical", 4))
sketch13.addConstraint(Sketcher.Constraint("Horizontal", 5))
sketch13.addConstraint(Sketcher.Constraint("Vertical", 6))
sketch13.addConstraint(Sketcher.Constraint("Horizontal", 7))
sketch13.addConstraint(Sketcher.Constraint("Symmetric", 3, 2, 4, 2, -2))
sketch13.addConstraint(Sketcher.Constraint("Symmetric", 1, 2, 6, 2, -2))
sketch13.addConstraint(Sketcher.Constraint("Equal", 7, 0))
sketch13.addConstraint(Sketcher.Constraint("DistanceX", 1, 1, 1, 2, Q("10 mm")))
sketch13.addConstraint(Sketcher.Constraint("DistanceX", 0, 2, -1, 1, Q("50 mm")))
sketch13.addConstraint(Sketcher.Constraint("DistanceY", 0, 2, -1, 1, Q("20 mm")))
pocket9 = body.newObject("PartDesign::Pocket", "Pocket008")
pocket9.Profile = sketch13
pocket9.Type = "TwoLengths"
pocket9.Length = 82.240384
pocket9.Length2 = 10

sketch14 = body.newObject("Sketcher::SketchObject", "Sketch013")
sketch14.AttachmentSupport = (doc.getObject("XZ_Plane"), [""])
sketch14.MapMode = "FlatFace"
sketch14.AttachmentOffset = App.Placement(Vector(0, 0, 40), App.Rotation())
sketch14.addGeometry(Part.LineSegment(Vector(-50, 9.8, 0), Vector(-50, 0, 0)), False)
sketch14.addGeometry(Part.LineSegment(Vector(-50, 0, 0), Vector(-40.2, 0, 0)), False)
sketch14.addGeometry(Part.LineSegment(Vector(-40.2, 0, 0), Vector(-40.2, 9.8, 0)), False)
sketch14.addGeometry(Part.LineSegment(Vector(-40.2, 9.8, 0), Vector(-50, 9.8, 0)), False)
sketch14.addGeometry(Part.LineSegment(Vector(40.2, 10.04883, 0), Vector(40.2, 0, 0)), False)
sketch14.addGeometry(Part.LineSegment(Vector(40.2, 0, 0), Vector(50, 0, 0)), False)
sketch14.addGeometry(Part.LineSegment(Vector(50, 0, 0), Vector(50, 10.04883, 0)), False)
sketch14.addGeometry(Part.LineSegment(Vector(50, 10.04883, 0), Vector(40.2, 10.04883, 0)), False)
sketch14.addConstraint(Sketcher.Constraint("Coincident", 0, 2, 1, 1))
sketch14.addConstraint(Sketcher.Constraint("Coincident", 1, 2, 2, 1))
sketch14.addConstraint(Sketcher.Constraint("Coincident", 2, 2, 3, 1))
sketch14.addConstraint(Sketcher.Constraint("Coincident", 3, 2, 0, 1))
sketch14.addConstraint(Sketcher.Constraint("Coincident", 4, 2, 5, 1))
sketch14.addConstraint(Sketcher.Constraint("Coincident", 5, 2, 6, 1))
sketch14.addConstraint(Sketcher.Constraint("Coincident", 6, 2, 7, 1))
sketch14.addConstraint(Sketcher.Constraint("Coincident", 7, 2, 4, 1))
sketch14.addConstraint(Sketcher.Constraint("Vertical", 0))
sketch14.addConstraint(Sketcher.Constraint("Horizontal", 1))
sketch14.addConstraint(Sketcher.Constraint("Vertical", 2))
sketch14.addConstraint(Sketcher.Constraint("Horizontal", 3))
sketch14.addConstraint(Sketcher.Constraint("Vertical", 4))
sketch14.addConstraint(Sketcher.Constraint("Horizontal", 5))
sketch14.addConstraint(Sketcher.Constraint("Vertical", 6))
sketch14.addConstraint(Sketcher.Constraint("Horizontal", 7))
sketch14.addConstraint(Sketcher.Constraint("Symmetric", 1, 2, 4, 2, -1, 1))
sketch14.addConstraint(Sketcher.Constraint("Symmetric", 0, 2, 5, 2, -2))
sketch14.addConstraint(Sketcher.Constraint("Equal", 7, 0))
sketch14.addConstraint(Sketcher.Constraint("DistanceX", 1, 1, 1, 2, Q("9.8 mm")))
sketch14.addConstraint(Sketcher.Constraint("DistanceX", 0, 2, -1, 1, Q("50 mm")))
sketch14.addConstraint(Sketcher.Constraint("DistanceY", 4, 2, 4, 1, Q("10.04883 mm")))
pocket10 = body.newObject("PartDesign::Pocket", "Pocket009")
pocket10.Profile = sketch14
pocket10.Length = 10

sketch15 = body.newObject("Sketcher::SketchObject", "Sketch014")
sketch15.AttachmentSupport = (doc.getObject("XY_Plane"), [""])
sketch15.MapMode = "FlatFace"
sketch15.addGeometry(Part.LineSegment(Vector(-48.1, -31.890503, 0), Vector(-48.1, -37.890503, 0)), False)
sketch15.addGeometry(Part.LineSegment(Vector(-48.1, -37.890503, 0), Vector(-42.1, -37.890503, 0)), False)
sketch15.addGeometry(Part.LineSegment(Vector(-42.1, -37.890503, 0), Vector(-42.1, -31.890503, 0)), False)
sketch15.addGeometry(Part.LineSegment(Vector(-42.1, -31.890503, 0), Vector(-48.1, -31.890503, 0)), False)
sketch15.addGeometry(Part.LineSegment(Vector(42.1, -32.230905, 0), Vector(42.1, -38.230905, 0)), False)
sketch15.addGeometry(Part.LineSegment(Vector(42.1, -38.230905, 0), Vector(48.1, -38.230905, 0)), False)
sketch15.addGeometry(Part.LineSegment(Vector(48.1, -38.230905, 0), Vector(48.1, -32.230905, 0)), False)
sketch15.addGeometry(Part.LineSegment(Vector(48.1, -32.230905, 0), Vector(42.1, -32.230905, 0)), False)
sketch15.addConstraint(Sketcher.Constraint("Coincident", 0, 2, 1, 1))
sketch15.addConstraint(Sketcher.Constraint("Coincident", 1, 2, 2, 1))
sketch15.addConstraint(Sketcher.Constraint("Coincident", 2, 2, 3, 1))
sketch15.addConstraint(Sketcher.Constraint("Coincident", 3, 2, 0, 1))
sketch15.addConstraint(Sketcher.Constraint("Coincident", 4, 2, 5, 1))
sketch15.addConstraint(Sketcher.Constraint("Coincident", 5, 2, 6, 1))
sketch15.addConstraint(Sketcher.Constraint("Coincident", 6, 2, 7, 1))
sketch15.addConstraint(Sketcher.Constraint("Coincident", 7, 2, 4, 1))
sketch15.addConstraint(Sketcher.Constraint("Vertical", 0))
sketch15.addConstraint(Sketcher.Constraint("Horizontal", 1))
sketch15.addConstraint(Sketcher.Constraint("Vertical", 2))
sketch15.addConstraint(Sketcher.Constraint("Horizontal", 3))
sketch15.addConstraint(Sketcher.Constraint("Vertical", 4))
sketch15.addConstraint(Sketcher.Constraint("Horizontal", 5))
sketch15.addConstraint(Sketcher.Constraint("Vertical", 6))
sketch15.addConstraint(Sketcher.Constraint("Horizontal", 7))
sketch15.addConstraint(Sketcher.Constraint("Equal", 3, 5))
sketch15.addConstraint(Sketcher.Constraint("Equal", 7, 0))
sketch15.addConstraint(Sketcher.Constraint("Equal", 2, 4))
sketch15.addConstraint(Sketcher.Constraint("DistanceX", 1, 1, 1, 2, Q("6 mm")))
sketch15.addConstraint(Sketcher.Constraint("DistanceX", 0, 2, -1, 1, Q("48.1 mm")))
sketch15.addConstraint(Sketcher.Constraint("DistanceX", -1, 1, 4, 2, Q("42.1 mm")))
sketch15.addConstraint(Sketcher.Constraint("DistanceY", 4, 2, 1, 2, Q("0.340401 mm")))
sketch15.addConstraint(Sketcher.Constraint("DistanceY", 0, 2, -1, 1, Q("37.890503 mm")))
pocket11 = body.newObject("PartDesign::Pocket", "Pocket010")
pocket11.Profile = sketch15
pocket11.Length = 6

sketch16 = body.newObject("Sketcher::SketchObject", "Sketch015")
sketch16.AttachmentSupport = (doc.getObject("XZ_Plane"), [""])
sketch16.MapMode = "FlatFace"
sketch16.AttachmentOffset = App.Placement(Vector(0, 0, 40), App.Rotation())
sketch16.addGeometry(Part.LineSegment(Vector(-3.2, -50, 0), Vector(3.2, -50, 0)), False)
sketch16.addGeometry(Part.LineSegment(Vector(3.2, -50, 0), Vector(3.2, -14.9, 0)), False)
sketch16.addGeometry(Part.LineSegment(Vector(3.2, -14.9, 0), Vector(-3.2, -14.9, 0)), False)
sketch16.addGeometry(Part.LineSegment(Vector(-3.2, -14.9, 0), Vector(-3.2, -50, 0)), False)
sketch16.addConstraint(Sketcher.Constraint("Coincident", 0, 2, 1, 1))
sketch16.addConstraint(Sketcher.Constraint("Coincident", 1, 2, 2, 1))
sketch16.addConstraint(Sketcher.Constraint("Coincident", 2, 2, 3, 1))
sketch16.addConstraint(Sketcher.Constraint("Coincident", 3, 2, 0, 1))
sketch16.addConstraint(Sketcher.Constraint("Horizontal", 0))
sketch16.addConstraint(Sketcher.Constraint("Vertical", 1))
sketch16.addConstraint(Sketcher.Constraint("Horizontal", 2))
sketch16.addConstraint(Sketcher.Constraint("Vertical", 3))
sketch16.addConstraint(Sketcher.Constraint("DistanceX", 0, 1, 0, 2, Q("6.4 mm")))
sketch16.addConstraint(Sketcher.Constraint("DistanceY", 1, 1, 1, 2, Q("35.1 mm")))
sketch16.addConstraint(Sketcher.Constraint("DistanceY", 0, 2, -1, 1, Q("50 mm")))
sketch16.addConstraint(Sketcher.Constraint("DistanceX", -1, 1, 0, 2, Q("3.2 mm")))
pocket12 = body.newObject("PartDesign::Pocket", "Pocket011")
pocket12.Profile = sketch16
pocket12.Length = 32

sketch17 = body.newObject("Sketcher::SketchObject", "Sketch016")
sketch17.AttachmentSupport = (doc.getObject("XZ_Plane"), [""])
sketch17.MapMode = "FlatFace"
sketch17.AttachmentOffset = App.Placement(Vector(0, 0, 40), App.Rotation())
sketch17.addGeometry(Part.LineSegment(Vector(8.5, -24.9, 0), Vector(3.2, -24.9, 0)), False)
sketch17.addGeometry(Part.LineSegment(Vector(3.2, -24.9, 0), Vector(3.2, -50, 0)), False)
sketch17.addGeometry(Part.LineSegment(Vector(3.2, -50, 0), Vector(8.5, -50, 0)), False)
sketch17.addGeometry(Part.LineSegment(Vector(8.5, -50, 0), Vector(8.5, -24.9, 0)), False)
sketch17.addConstraint(Sketcher.Constraint("Coincident", 0, 2, 1, 1))
sketch17.addConstraint(Sketcher.Constraint("Coincident", 1, 2, 2, 1))
sketch17.addConstraint(Sketcher.Constraint("Coincident", 2, 2, 3, 1))
sketch17.addConstraint(Sketcher.Constraint("Coincident", 3, 2, 0, 1))
sketch17.addConstraint(Sketcher.Constraint("Horizontal", 0))
sketch17.addConstraint(Sketcher.Constraint("Vertical", 1))
sketch17.addConstraint(Sketcher.Constraint("Horizontal", 2))
sketch17.addConstraint(Sketcher.Constraint("Vertical", 3))
sketch17.addConstraint(Sketcher.Constraint("DistanceX", 0, 2, 0, 1, Q("5.3 mm")))
sketch17.addConstraint(Sketcher.Constraint("DistanceY", 1, 2, 1, 1, Q("25.1 mm")))
sketch17.addConstraint(Sketcher.Constraint("DistanceY", 1, 2, -1, 1, Q("50 mm")))
sketch17.addConstraint(Sketcher.Constraint("DistanceX", -1, 1, 0, 2, Q("3.2 mm")))
pocket13 = body.newObject("PartDesign::Pocket", "Pocket012")
pocket13.Profile = sketch17
pocket13.Length = 13
body2 = doc.addObject("PartDesign::Body", "Body001")

sketch18 = body2.newObject("Sketcher::SketchObject", "Sketch017")
sketch18.AttachmentSupport = (doc.getObject("XY_Plane001"), [""])
sketch18.MapMode = "FlatFace"
sketch18.AttachmentOffset = App.Placement(Vector(0, 0, 50), App.Rotation())
sketch18.addGeometry(Part.LineSegment(Vector(0, -50, 0), Vector(-50, -50, 0)), False)
sketch18.addGeometry(Part.LineSegment(Vector(-50, -50, 0), Vector(-50, -63.39746, 0)), False)
sketch18.addGeometry(Part.ArcOfCircle(Part.Circle(Vector(0, -150, 0), Vector(0, 0, 1), 100), math.radians(90), math.radians(120)), False)
sketch18.addConstraint(Sketcher.Constraint("Coincident", 0, 2, 1, 1))
sketch18.addConstraint(Sketcher.Constraint("Coincident", 1, 2, 2, 2))
sketch18.addConstraint(Sketcher.Constraint("Tangent", 2, 1, 0, 1))
sketch18.addConstraint(Sketcher.Constraint("Horizontal", 0))
sketch18.addConstraint(Sketcher.Constraint("Vertical", 1))
sketch18.addConstraint(Sketcher.Constraint("PointOnObject", 2, 3, -2))
sketch18.addConstraint(Sketcher.Constraint("Radius", 2, Q("100 mm")))
sketch18.addConstraint(Sketcher.Constraint("DistanceX", 0, 2, 0, 1, Q("50 mm")))
sketch18.addConstraint(Sketcher.Constraint("DistanceY", 2, 3, -1, 1, Q("150 mm")))
pad5 = body2.newObject("PartDesign::Pad", "Pad004")
pad5.Profile = sketch18
pad5.Length = 50
pad5.Reversed = True
body3 = doc.addObject("PartDesign::Body", "Body002")

sketch19 = body3.newObject("Sketcher::SketchObject", "Sketch018")
sketch19.AttachmentSupport = (doc.getObject("XY_Plane002"), [""])
sketch19.MapMode = "FlatFace"
sketch19.AttachmentOffset = App.Placement(Vector(0, 0, 50), App.Rotation())
sketch19.addGeometry(Part.LineSegment(Vector(50, -50, 0), Vector(0, -50, 0)), False)
sketch19.addGeometry(Part.ArcOfCircle(Part.Circle(Vector(0, -150, 0), Vector(0, 0, 1), 100), math.radians(60), math.radians(90)), False)
sketch19.addGeometry(Part.LineSegment(Vector(50, -63.39746, 0), Vector(50, -50, 0)), False)
sketch19.addConstraint(Sketcher.Constraint("Tangent", 0, 2, 1, 2))
sketch19.addConstraint(Sketcher.Constraint("Coincident", 1, 1, 2, 1))
sketch19.addConstraint(Sketcher.Constraint("Coincident", 2, 2, 0, 1))
sketch19.addConstraint(Sketcher.Constraint("Horizontal", 0))
sketch19.addConstraint(Sketcher.Constraint("Vertical", 2))
sketch19.addConstraint(Sketcher.Constraint("PointOnObject", 1, 3, -2))
sketch19.addConstraint(Sketcher.Constraint("Radius", 1, Q("100 mm")))
sketch19.addConstraint(Sketcher.Constraint("DistanceX", 0, 2, 0, 1, Q("50 mm")))
sketch19.addConstraint(Sketcher.Constraint("DistanceY", 1, 3, -1, 1, Q("150 mm")))
pad6 = body3.newObject("PartDesign::Pad", "Pad005")
pad6.Profile = sketch19
pad6.Length = 50
pad6.Reversed = True
body4 = doc.addObject("PartDesign::Body", "Body003")

sketch20 = body4.newObject("Sketcher::SketchObject", "Sketch019")
sketch20.AttachmentSupport = (doc.getObject("XZ_Plane003"), [""])
sketch20.MapMode = "FlatFace"
sketch20.AttachmentOffset = App.Placement(Vector(0, 0, 63.39746), App.Rotation())
sketch20.addGeometry(Part.LineSegment(Vector(50, 0, 0), Vector(50, 50, 0)), False)
sketch20.addGeometry(Part.LineSegment(Vector(50, 50, 0), Vector(-50, 50, 0)), False)
sketch20.addGeometry(Part.LineSegment(Vector(-50, 50, 0), Vector(-50, 0, 0)), False)
sketch20.addGeometry(Part.LineSegment(Vector(-50, 0, 0), Vector(50, 0, 0)), False)
sketch20.addConstraint(Sketcher.Constraint("Coincident", 0, 2, 1, 1))
sketch20.addConstraint(Sketcher.Constraint("Coincident", 1, 2, 2, 1))
sketch20.addConstraint(Sketcher.Constraint("Coincident", 2, 2, 3, 1))
sketch20.addConstraint(Sketcher.Constraint("Coincident", 3, 2, 0, 1))
sketch20.addConstraint(Sketcher.Constraint("Vertical", 0))
sketch20.addConstraint(Sketcher.Constraint("Horizontal", 1))
sketch20.addConstraint(Sketcher.Constraint("Vertical", 2))
sketch20.addConstraint(Sketcher.Constraint("Horizontal", 3))
sketch20.addConstraint(Sketcher.Constraint("Symmetric", 2, 2, 3, 2, -1, 1))
sketch20.addConstraint(Sketcher.Constraint("DistanceX", 1, 2, 1, 1, Q("100 mm")))
sketch20.addConstraint(Sketcher.Constraint("DistanceY", 0, 1, 0, 2, Q("50 mm")))
pad7 = body4.newObject("PartDesign::Pad", "Pad006")
pad7.Profile = sketch20
pad7.Length = 100
pad7.Reversed = True
doc.recompute()

body5 = doc.addObject("PartDesign::Body", "Body004")
body5.BaseFeature = body4
boolean = body2.newObject("PartDesign::Boolean", "Boolean")
boolean.Type = "Cut"
boolean.addObjects([body5])
doc.recompute()

boolean2 = body3.newObject("PartDesign::Boolean", "Boolean001")
boolean2.Type = "Cut"
boolean2.addObjects([body4])

doc.recompute()
